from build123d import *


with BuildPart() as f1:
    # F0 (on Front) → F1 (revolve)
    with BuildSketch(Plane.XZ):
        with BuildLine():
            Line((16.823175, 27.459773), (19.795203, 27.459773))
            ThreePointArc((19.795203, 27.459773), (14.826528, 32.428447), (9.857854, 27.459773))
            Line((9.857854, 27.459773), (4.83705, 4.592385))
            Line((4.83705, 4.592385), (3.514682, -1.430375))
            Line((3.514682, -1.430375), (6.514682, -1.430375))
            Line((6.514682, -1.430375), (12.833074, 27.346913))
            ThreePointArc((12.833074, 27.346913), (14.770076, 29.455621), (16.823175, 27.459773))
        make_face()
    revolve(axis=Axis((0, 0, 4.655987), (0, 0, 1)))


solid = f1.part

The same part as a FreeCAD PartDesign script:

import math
import FreeCAD as App
import Part
import Sketcher

doc = App.newDocument("Part")
body = doc.addObject("PartDesign::Body", "Body")

sketch1 = body.newObject("Sketcher::SketchObject", "Sketch")
sketch1.AttachmentSupport = (doc.getObject("XZ_Plane"), [""])
sketch1.MapMode = "FlatFace"
sketch1.addGeometry(Part.LineSegment(App.Vector(16.8, 27.5, 0), App.Vector(19.8, 27.5, 0)), False)
sketch1.addGeometry(Part.ArcOfCircle(Part.Circle(App.Vector(14.8, 27.5, 0), App.Vector(0, 0, 1), 5), math.radians(0), math.radians(180)), False)
sketch1.addGeometry(Part.LineSegment(App.Vector(9.9, 27.5, 0), App.Vector(4.8, 4.6, 0)), False)
sketch1.addGeometry(Part.LineSegment(App.Vector(4.8, 4.6, 0), App.Vector(3.5, -1.4, 0)), False)
sketch1.addGeometry(Part.LineSegment(App.Vector(3.5, -1.4, 0), App.Vector(6.5, -1.4, 0)), False)
sketch1.addGeometry(Part.LineSegment(App.Vector(6.5, -1.4, 0), App.Vector(12.8, 27.3, 0)), False)
sketch1.addGeometry(Part.ArcOfCircle(Part.Circle(App.Vector(14.8, 27.5, 0), App.Vector(0, 0, 1), 2), math.radians(0), math.radians(183)), False)
sketch1.addConstraint(Sketcher.Constraint("Coincident", 0, 2, 1, 1))
sketch1.addConstraint(Sketcher.Constraint("Coincident", 1, 2, 2, 1))
sketch1.addConstraint(Sketcher.Constraint("Coincident", 2, 2, 3, 1))
sketch1.addConstraint(Sketcher.Constraint("Coincident", 3, 2, 4, 1))
sketch1.addConstraint(Sketcher.Constraint("Coincident", 4, 2, 5, 1))
sketch1.addConstraint(Sketcher.Constraint("Coincident", 5, 2, 6, 2))
sketch1.addConstraint(Sketcher.Constraint("Coincident", 6, 1, 0, 1))
sketch1.addConstraint(Sketcher.Constraint("Horizontal", 0))
sketch1.addConstraint(Sketcher.Constraint("Horizontal", 4))
sketch1.addConstraint(Sketcher.Constraint("Coincident", 6, 3, 1, 3))
sketch1.addConstraint(Sketcher.Constraint("Parallel", 2, 3))
sketch1.addConstraint(Sketcher.Constraint("Parallel", 3, 5))
sketch1.addConstraint(Sketcher.Constraint("Horizontal", 6, 3, 0, 2))
sketch1.addConstraint(Sketcher.Constraint("Horizontal", 0, 2, 1, 2))
sketch1.addConstraint(Sketcher.Constraint("DistanceX", 4, 1, 4, 2, 3.0))
sketch1.addConstraint(Sketcher.Constraint("Radius", 1, 4.968674))
sketch1.addConstraint(Sketcher.Constraint("Radius", 6, 1.996647))
sketch1.addConstraint(Sketcher.Constraint("Distance", 2, 23.412089))
sketch1.addConstraint(Sketcher.Constraint("DistanceX", -1, 1, 1, 3, 14.826529))
sketch1.addConstraint(Sketcher.Constraint("DistanceX", -1, 1, 2, 2, 4.83705))
sketch1.addConstraint(Sketcher.Constraint("DistanceX", -1, 1, 4, 2, 6.514682))
sketch1.addConstraint(Sketcher.Constraint("DistanceY", -1, 1, 1, 3, 27.459772))
revolution = body.newObject("PartDesign::Revolution", "Revolution")
revolution.Profile = sketch1
revolution.ReferenceAxis = (sketch1, ["V_Axis"])
revolution.Angle = 360

doc.recompute()
